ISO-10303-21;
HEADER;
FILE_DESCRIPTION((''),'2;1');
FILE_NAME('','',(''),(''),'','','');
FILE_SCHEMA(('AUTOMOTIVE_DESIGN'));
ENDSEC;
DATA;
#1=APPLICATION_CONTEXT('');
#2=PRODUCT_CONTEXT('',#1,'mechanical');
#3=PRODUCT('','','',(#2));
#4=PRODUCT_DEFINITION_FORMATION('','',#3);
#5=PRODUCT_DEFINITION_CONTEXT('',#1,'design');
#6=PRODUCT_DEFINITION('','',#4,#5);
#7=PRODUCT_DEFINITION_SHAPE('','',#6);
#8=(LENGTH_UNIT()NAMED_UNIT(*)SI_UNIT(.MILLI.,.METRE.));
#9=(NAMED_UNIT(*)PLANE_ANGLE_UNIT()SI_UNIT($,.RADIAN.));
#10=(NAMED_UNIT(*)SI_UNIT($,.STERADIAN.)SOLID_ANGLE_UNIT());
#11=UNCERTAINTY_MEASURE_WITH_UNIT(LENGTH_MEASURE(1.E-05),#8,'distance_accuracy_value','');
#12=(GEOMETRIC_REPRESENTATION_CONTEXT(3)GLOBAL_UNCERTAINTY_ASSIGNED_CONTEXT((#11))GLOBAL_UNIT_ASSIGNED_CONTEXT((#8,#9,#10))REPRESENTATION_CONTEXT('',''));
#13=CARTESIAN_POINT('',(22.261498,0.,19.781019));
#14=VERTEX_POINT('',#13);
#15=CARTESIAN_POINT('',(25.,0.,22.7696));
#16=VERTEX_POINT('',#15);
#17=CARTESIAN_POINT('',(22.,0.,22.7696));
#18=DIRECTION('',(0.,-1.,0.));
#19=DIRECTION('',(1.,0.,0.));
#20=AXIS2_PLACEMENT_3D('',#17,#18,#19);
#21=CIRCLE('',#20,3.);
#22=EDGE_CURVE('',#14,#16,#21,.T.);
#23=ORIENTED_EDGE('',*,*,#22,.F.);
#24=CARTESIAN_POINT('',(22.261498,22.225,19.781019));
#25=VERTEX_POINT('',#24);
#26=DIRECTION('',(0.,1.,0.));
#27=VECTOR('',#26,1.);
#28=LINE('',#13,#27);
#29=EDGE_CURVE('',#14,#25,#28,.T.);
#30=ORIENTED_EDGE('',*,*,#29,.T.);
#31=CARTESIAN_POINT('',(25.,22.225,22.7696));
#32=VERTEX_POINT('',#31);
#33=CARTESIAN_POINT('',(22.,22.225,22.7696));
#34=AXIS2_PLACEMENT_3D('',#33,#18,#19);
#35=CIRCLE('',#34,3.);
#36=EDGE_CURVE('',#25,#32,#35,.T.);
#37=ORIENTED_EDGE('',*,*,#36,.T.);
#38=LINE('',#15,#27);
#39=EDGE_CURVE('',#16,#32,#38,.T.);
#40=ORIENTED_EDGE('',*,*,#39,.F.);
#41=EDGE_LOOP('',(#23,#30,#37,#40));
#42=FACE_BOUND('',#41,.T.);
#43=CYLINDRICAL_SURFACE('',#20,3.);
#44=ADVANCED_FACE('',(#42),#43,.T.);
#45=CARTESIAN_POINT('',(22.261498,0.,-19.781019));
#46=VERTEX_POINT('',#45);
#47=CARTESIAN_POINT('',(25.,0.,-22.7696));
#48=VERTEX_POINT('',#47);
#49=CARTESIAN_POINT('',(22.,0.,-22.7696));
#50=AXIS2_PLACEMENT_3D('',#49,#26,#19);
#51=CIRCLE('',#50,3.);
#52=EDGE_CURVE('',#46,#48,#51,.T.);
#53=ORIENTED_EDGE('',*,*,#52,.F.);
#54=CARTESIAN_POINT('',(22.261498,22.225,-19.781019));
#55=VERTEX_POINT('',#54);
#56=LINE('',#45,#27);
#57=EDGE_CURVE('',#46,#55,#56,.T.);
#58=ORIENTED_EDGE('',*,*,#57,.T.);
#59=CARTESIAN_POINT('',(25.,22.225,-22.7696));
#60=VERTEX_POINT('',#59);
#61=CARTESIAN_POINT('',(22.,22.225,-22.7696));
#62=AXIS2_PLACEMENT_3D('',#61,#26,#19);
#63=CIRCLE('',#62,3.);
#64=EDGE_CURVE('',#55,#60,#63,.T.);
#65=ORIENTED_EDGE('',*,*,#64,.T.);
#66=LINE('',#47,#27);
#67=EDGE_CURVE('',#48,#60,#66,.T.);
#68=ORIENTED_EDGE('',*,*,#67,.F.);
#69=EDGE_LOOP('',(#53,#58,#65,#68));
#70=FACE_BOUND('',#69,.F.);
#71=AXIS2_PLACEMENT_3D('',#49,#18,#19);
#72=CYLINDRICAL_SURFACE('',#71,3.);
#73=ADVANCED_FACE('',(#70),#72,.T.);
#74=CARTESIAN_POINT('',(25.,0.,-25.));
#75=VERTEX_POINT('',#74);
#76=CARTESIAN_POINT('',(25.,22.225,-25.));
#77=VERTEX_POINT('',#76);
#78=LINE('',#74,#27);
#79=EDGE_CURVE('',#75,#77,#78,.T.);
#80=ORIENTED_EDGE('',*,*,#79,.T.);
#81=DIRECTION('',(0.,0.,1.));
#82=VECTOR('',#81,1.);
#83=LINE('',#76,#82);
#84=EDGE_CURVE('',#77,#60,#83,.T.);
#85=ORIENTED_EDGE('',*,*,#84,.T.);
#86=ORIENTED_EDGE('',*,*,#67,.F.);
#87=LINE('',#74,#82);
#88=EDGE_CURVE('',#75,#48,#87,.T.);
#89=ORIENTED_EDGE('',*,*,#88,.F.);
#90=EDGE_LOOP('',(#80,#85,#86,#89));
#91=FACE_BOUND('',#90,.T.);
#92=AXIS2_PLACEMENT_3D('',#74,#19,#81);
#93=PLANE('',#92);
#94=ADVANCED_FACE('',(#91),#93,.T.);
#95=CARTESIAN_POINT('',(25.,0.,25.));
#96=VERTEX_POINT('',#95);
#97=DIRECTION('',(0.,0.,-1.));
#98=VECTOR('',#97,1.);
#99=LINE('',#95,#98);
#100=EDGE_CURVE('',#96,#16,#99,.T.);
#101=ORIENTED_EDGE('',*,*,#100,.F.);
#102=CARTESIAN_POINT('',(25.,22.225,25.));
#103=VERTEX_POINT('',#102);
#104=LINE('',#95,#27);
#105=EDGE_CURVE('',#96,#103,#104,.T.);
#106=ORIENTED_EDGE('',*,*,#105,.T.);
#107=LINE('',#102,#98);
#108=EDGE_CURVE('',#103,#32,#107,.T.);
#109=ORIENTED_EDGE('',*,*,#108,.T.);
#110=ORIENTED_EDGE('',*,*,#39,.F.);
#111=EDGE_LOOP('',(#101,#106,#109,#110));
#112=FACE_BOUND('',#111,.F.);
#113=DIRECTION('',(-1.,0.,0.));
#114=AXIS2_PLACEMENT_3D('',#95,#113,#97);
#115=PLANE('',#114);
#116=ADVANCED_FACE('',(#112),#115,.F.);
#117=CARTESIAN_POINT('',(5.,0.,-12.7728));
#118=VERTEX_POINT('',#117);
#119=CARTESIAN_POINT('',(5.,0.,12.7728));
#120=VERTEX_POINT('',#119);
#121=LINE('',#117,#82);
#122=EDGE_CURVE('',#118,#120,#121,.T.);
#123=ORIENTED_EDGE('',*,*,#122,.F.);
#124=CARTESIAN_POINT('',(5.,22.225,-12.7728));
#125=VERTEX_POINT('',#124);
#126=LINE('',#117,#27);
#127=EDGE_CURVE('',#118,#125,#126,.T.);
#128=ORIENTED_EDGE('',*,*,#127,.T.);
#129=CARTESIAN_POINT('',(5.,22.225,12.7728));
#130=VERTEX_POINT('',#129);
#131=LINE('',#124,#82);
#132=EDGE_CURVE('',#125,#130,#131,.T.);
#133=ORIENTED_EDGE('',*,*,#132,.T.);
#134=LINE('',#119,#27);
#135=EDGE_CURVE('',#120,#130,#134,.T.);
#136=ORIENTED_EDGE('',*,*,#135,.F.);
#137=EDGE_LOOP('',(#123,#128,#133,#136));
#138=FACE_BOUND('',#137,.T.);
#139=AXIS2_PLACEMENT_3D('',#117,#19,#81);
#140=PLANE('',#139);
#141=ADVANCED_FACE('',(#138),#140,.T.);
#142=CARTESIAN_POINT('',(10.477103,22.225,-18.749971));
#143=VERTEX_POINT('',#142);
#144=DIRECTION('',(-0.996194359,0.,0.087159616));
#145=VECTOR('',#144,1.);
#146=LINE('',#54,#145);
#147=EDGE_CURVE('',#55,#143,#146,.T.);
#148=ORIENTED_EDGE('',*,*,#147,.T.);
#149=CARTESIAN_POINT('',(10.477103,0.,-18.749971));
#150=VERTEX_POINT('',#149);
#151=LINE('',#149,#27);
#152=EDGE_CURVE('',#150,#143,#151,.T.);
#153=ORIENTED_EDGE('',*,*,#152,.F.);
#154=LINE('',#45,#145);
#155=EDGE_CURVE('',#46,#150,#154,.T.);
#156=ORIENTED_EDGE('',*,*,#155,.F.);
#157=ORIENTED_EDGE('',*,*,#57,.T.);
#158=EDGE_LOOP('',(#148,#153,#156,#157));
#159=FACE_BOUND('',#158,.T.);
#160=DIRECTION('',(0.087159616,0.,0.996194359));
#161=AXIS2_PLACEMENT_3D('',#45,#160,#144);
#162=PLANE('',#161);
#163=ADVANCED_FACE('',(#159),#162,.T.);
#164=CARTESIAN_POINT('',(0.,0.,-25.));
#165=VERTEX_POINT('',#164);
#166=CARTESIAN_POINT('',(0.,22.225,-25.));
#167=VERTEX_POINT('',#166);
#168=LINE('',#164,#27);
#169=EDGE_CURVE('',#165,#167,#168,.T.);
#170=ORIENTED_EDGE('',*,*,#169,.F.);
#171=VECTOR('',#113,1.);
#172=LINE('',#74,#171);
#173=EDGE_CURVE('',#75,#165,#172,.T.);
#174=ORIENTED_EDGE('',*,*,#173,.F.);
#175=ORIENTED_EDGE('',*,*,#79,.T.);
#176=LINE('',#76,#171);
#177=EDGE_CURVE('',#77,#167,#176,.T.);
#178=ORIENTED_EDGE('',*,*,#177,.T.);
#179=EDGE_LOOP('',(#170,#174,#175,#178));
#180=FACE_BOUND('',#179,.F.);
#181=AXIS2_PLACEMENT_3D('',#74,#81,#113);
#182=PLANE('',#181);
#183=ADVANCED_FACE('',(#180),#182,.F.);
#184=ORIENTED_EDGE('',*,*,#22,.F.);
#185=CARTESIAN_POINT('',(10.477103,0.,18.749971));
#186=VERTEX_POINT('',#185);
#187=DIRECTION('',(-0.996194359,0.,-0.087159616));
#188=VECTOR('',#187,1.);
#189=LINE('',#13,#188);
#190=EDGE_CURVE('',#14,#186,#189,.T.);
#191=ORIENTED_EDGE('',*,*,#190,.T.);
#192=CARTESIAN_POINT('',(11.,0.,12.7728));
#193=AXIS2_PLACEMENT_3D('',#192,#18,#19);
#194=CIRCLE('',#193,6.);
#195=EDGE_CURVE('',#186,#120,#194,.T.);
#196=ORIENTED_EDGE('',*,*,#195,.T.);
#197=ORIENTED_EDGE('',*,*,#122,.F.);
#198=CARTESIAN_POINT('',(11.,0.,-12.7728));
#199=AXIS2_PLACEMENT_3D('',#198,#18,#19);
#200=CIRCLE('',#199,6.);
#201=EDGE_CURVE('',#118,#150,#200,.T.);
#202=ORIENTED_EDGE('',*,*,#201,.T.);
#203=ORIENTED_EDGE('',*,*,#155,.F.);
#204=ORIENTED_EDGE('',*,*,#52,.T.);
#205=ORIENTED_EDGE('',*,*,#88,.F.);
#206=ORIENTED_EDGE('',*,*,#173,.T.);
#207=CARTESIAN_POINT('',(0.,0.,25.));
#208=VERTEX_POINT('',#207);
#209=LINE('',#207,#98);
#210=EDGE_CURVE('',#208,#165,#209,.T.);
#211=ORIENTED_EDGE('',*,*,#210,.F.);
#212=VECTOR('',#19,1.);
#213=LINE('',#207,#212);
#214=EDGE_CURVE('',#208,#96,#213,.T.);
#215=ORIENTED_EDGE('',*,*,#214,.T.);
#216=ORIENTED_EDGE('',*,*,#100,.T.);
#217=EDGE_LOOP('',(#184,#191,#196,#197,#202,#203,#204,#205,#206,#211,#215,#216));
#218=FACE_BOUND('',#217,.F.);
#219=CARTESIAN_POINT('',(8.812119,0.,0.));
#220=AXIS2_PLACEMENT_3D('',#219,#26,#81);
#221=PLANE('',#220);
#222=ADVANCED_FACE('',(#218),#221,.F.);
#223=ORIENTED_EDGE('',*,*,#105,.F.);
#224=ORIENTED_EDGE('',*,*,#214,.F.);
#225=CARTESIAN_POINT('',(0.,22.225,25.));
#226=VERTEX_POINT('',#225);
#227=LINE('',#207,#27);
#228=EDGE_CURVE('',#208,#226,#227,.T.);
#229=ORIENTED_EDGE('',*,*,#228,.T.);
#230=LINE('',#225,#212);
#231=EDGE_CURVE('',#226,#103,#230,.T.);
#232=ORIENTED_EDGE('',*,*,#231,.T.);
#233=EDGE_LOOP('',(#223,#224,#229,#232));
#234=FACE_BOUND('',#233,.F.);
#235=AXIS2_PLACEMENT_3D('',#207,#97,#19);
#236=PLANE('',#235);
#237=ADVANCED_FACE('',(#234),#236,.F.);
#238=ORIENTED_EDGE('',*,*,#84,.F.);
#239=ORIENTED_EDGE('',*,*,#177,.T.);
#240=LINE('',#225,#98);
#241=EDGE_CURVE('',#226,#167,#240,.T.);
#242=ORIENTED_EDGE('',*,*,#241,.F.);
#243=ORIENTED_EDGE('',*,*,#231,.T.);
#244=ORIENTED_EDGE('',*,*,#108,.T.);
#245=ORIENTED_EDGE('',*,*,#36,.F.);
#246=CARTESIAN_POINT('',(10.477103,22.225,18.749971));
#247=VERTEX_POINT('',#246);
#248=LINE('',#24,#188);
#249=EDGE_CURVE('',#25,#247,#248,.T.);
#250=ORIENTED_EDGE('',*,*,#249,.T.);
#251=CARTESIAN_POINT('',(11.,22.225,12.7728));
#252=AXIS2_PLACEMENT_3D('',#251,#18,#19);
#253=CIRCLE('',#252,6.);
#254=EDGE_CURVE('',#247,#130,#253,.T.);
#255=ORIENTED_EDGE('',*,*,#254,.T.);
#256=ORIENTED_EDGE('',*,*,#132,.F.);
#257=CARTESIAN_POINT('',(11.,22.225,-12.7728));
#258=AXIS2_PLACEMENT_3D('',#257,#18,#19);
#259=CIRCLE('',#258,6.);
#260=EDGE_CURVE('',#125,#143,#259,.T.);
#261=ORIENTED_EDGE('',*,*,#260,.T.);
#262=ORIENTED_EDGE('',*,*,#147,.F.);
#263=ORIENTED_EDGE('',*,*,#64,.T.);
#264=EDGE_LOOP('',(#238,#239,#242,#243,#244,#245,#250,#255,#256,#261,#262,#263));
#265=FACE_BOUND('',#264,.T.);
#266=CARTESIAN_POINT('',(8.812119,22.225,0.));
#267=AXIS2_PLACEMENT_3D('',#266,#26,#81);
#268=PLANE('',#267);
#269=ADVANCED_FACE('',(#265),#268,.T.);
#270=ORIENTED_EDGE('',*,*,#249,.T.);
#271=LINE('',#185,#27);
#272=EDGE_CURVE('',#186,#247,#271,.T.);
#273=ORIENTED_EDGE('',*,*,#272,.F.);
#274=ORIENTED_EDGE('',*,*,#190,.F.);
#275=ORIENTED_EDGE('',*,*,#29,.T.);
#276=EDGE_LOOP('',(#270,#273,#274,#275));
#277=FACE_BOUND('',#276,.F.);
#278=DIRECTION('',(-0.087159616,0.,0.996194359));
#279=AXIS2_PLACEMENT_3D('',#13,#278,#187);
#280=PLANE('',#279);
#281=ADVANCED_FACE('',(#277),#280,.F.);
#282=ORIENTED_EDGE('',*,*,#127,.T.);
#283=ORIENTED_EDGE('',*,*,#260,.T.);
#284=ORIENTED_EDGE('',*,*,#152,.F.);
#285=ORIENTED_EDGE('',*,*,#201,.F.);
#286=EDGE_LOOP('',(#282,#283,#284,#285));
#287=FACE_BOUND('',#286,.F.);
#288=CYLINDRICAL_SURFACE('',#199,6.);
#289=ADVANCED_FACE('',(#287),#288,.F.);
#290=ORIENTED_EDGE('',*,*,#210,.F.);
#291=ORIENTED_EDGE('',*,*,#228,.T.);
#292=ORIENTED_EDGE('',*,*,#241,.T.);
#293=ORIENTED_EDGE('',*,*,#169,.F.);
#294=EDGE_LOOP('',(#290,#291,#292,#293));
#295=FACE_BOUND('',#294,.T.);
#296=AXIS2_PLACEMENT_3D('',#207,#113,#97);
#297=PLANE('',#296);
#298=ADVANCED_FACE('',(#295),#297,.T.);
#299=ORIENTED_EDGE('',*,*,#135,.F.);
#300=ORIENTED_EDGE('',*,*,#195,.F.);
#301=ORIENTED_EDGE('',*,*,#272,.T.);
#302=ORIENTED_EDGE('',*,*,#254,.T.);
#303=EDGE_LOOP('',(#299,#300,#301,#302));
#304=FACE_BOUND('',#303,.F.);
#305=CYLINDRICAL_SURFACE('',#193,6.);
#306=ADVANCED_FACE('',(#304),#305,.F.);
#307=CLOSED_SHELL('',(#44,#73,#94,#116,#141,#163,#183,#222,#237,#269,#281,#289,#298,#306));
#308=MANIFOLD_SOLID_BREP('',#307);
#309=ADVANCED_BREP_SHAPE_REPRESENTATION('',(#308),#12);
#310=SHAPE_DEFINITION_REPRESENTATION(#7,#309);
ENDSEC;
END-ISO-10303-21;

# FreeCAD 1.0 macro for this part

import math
import FreeCAD as App
import Part
import Sketcher
Q = App.Units.Quantity

doc = App.newDocument("Part")
body = doc.addObject("PartDesign::Body", "Body")

# Sketch on XZ plane
sketch1 = doc.addObject("Sketcher::SketchObject", "Sketch")
body.addObject(sketch1)
sketch1.AttachmentSupport = (doc.XZ_Plane, [""])
sketch1.MapMode = "FlatFace"
sketch1.addGeometry(Part.LineSegment(App.Vector(0, -25, 0), App.Vector(25, -25, 0)), False)
sketch1.addGeometry(Part.LineSegment(App.Vector(25, -25, 0), App.Vector(25, -22.8, 0)), False)
sketch1.addGeometry(Part.ArcOfCircle(Part.Circle(App.Vector(22, -22.8, 0), App.Vector(0, 0, 1), 3), math.radians(0), math.radians(85)), False)
sketch1.addGeometry(Part.LineSegment(App.Vector(22.3, -19.8, 0), App.Vector(10.5, -18.8, 0)), False)
sketch1.addGeometry(Part.ArcOfCircle(Part.Circle(App.Vector(11, -12.8, 0), App.Vector(0, 0, 1), 6), math.radians(180), math.radians(265)), False)
sketch1.addGeometry(Part.LineSegment(App.Vector(5, -12.8, 0), App.Vector(5, 12.8, 0)), False)
sketch1.addGeometry(Part.ArcOfCircle(Part.Circle(App.Vector(11, 12.8, 0), App.Vector(0, 0, 1), 6), math.radians(95), math.radians(180)), False)
sketch1.addGeometry(Part.LineSegment(App.Vector(10.5, 18.8, 0), App.Vector(22.3, 19.8, 0)), False)
sketch1.addGeometry(Part.ArcOfCircle(Part.Circle(App.Vector(22, 22.8, 0), App.Vector(0, 0, 1), 3), math.radians(-85), math.radians(0)), False)
sketch1.addGeometry(Part.LineSegment(App.Vector(25, 22.8, 0), App.Vector(25, 25, 0)), False)
sketch1.addGeometry(Part.LineSegment(App.Vector(25, 25, 0), App.Vector(0, 25, 0)), False)
sketch1.addGeometry(Part.LineSegment(App.Vector(0, 25, 0), App.Vector(0, -25, 0)), False)
sketch1.addConstraint(Sketcher.Constraint("Coincident", 0, 2, 1, 1))
sketch1.addConstraint(Sketcher.Constraint("Tangent", 1, 2, 2, 1))
sketch1.addConstraint(Sketcher.Constraint("Tangent", 2, 2, 3, 1))
sketch1.addConstraint(Sketcher.Constraint("Tangent", 3, 2, 4, 2))
sketch1.addConstraint(Sketcher.Constraint("Tangent", 4, 1, 5, 1))
sketch1.addConstraint(Sketcher.Constraint("Tangent", 5, 2, 6, 2))
sketch1.addConstraint(Sketcher.Constraint("Tangent", 6, 1, 7, 1))
sketch1.addConstraint(Sketcher.Constraint("Tangent", 7, 2, 8, 1))
sketch1.addConstraint(Sketcher.Constraint("Tangent", 8, 2, 9, 1))
sketch1.addConstraint(Sketcher.Constraint("Coincident", 9, 2, 10, 1))
sketch1.addConstraint(Sketcher.Constraint("Coincident", 10, 2, 11, 1))
sketch1.addConstraint(Sketcher.Constraint("Coincident", 11, 2, 0, 1))
sketch1.addConstraint(Sketcher.Constraint("Horizontal", 0))
sketch1.addConstraint(Sketcher.Constraint("Vertical", 1))
sketch1.addConstraint(Sketcher.Constraint("Vertical", 5))
sketch1.addConstraint(Sketcher.Constraint("Vertical", 9))
sketch1.addConstraint(Sketcher.Constraint("Horizontal", 10))
sketch1.addConstraint(Sketcher.Constraint("Vertical", 11))
sketch1.addConstraint(Sketcher.Constraint("Equal", 4, 6))
sketch1.addConstraint(Sketcher.Constraint("Equal", 2, 8))
sketch1.addConstraint(Sketcher.Constraint("Symmetric", 10, 2, 11, 2, -1, 1))
sketch1.addConstraint(Sketcher.Constraint("Symmetric", 2, 3, 8, 3, -1))
sketch1.addConstraint(Sketcher.Constraint("Vertical", 3, 2, 6, 1))
sketch1.addConstraint(Sketcher.Constraint("Radius", 2, Q("3 mm")))
sketch1.addConstraint(Sketcher.Constraint("Radius", 4, Q("6 mm")))
sketch1.addConstraint(Sketcher.Constraint("DistanceX", 0, 1, 0, 2, Q("25 mm")))
sketch1.addConstraint(Sketcher.Constraint("DistanceY", 11, 2, 11, 1, Q("50 mm")))
sketch1.addConstraint(Sketcher.Constraint("Angle", 3, Q("175 deg")))
sketch1.addConstraint(Sketcher.Constraint("DistanceX", -1, 1, 4, 3, Q("11 mm")))
sketch1.addConstraint(Sketcher.Constraint("DistanceY", 3, 2, -1, 1, Q("18.75 mm")))
pad1 = doc.addObject("PartDesign::Pad", "Pad")
body.addObject(pad1)
pad1.Profile = sketch1
pad1.Length = 22.225
pad1.Reversed = True

doc.recompute()
